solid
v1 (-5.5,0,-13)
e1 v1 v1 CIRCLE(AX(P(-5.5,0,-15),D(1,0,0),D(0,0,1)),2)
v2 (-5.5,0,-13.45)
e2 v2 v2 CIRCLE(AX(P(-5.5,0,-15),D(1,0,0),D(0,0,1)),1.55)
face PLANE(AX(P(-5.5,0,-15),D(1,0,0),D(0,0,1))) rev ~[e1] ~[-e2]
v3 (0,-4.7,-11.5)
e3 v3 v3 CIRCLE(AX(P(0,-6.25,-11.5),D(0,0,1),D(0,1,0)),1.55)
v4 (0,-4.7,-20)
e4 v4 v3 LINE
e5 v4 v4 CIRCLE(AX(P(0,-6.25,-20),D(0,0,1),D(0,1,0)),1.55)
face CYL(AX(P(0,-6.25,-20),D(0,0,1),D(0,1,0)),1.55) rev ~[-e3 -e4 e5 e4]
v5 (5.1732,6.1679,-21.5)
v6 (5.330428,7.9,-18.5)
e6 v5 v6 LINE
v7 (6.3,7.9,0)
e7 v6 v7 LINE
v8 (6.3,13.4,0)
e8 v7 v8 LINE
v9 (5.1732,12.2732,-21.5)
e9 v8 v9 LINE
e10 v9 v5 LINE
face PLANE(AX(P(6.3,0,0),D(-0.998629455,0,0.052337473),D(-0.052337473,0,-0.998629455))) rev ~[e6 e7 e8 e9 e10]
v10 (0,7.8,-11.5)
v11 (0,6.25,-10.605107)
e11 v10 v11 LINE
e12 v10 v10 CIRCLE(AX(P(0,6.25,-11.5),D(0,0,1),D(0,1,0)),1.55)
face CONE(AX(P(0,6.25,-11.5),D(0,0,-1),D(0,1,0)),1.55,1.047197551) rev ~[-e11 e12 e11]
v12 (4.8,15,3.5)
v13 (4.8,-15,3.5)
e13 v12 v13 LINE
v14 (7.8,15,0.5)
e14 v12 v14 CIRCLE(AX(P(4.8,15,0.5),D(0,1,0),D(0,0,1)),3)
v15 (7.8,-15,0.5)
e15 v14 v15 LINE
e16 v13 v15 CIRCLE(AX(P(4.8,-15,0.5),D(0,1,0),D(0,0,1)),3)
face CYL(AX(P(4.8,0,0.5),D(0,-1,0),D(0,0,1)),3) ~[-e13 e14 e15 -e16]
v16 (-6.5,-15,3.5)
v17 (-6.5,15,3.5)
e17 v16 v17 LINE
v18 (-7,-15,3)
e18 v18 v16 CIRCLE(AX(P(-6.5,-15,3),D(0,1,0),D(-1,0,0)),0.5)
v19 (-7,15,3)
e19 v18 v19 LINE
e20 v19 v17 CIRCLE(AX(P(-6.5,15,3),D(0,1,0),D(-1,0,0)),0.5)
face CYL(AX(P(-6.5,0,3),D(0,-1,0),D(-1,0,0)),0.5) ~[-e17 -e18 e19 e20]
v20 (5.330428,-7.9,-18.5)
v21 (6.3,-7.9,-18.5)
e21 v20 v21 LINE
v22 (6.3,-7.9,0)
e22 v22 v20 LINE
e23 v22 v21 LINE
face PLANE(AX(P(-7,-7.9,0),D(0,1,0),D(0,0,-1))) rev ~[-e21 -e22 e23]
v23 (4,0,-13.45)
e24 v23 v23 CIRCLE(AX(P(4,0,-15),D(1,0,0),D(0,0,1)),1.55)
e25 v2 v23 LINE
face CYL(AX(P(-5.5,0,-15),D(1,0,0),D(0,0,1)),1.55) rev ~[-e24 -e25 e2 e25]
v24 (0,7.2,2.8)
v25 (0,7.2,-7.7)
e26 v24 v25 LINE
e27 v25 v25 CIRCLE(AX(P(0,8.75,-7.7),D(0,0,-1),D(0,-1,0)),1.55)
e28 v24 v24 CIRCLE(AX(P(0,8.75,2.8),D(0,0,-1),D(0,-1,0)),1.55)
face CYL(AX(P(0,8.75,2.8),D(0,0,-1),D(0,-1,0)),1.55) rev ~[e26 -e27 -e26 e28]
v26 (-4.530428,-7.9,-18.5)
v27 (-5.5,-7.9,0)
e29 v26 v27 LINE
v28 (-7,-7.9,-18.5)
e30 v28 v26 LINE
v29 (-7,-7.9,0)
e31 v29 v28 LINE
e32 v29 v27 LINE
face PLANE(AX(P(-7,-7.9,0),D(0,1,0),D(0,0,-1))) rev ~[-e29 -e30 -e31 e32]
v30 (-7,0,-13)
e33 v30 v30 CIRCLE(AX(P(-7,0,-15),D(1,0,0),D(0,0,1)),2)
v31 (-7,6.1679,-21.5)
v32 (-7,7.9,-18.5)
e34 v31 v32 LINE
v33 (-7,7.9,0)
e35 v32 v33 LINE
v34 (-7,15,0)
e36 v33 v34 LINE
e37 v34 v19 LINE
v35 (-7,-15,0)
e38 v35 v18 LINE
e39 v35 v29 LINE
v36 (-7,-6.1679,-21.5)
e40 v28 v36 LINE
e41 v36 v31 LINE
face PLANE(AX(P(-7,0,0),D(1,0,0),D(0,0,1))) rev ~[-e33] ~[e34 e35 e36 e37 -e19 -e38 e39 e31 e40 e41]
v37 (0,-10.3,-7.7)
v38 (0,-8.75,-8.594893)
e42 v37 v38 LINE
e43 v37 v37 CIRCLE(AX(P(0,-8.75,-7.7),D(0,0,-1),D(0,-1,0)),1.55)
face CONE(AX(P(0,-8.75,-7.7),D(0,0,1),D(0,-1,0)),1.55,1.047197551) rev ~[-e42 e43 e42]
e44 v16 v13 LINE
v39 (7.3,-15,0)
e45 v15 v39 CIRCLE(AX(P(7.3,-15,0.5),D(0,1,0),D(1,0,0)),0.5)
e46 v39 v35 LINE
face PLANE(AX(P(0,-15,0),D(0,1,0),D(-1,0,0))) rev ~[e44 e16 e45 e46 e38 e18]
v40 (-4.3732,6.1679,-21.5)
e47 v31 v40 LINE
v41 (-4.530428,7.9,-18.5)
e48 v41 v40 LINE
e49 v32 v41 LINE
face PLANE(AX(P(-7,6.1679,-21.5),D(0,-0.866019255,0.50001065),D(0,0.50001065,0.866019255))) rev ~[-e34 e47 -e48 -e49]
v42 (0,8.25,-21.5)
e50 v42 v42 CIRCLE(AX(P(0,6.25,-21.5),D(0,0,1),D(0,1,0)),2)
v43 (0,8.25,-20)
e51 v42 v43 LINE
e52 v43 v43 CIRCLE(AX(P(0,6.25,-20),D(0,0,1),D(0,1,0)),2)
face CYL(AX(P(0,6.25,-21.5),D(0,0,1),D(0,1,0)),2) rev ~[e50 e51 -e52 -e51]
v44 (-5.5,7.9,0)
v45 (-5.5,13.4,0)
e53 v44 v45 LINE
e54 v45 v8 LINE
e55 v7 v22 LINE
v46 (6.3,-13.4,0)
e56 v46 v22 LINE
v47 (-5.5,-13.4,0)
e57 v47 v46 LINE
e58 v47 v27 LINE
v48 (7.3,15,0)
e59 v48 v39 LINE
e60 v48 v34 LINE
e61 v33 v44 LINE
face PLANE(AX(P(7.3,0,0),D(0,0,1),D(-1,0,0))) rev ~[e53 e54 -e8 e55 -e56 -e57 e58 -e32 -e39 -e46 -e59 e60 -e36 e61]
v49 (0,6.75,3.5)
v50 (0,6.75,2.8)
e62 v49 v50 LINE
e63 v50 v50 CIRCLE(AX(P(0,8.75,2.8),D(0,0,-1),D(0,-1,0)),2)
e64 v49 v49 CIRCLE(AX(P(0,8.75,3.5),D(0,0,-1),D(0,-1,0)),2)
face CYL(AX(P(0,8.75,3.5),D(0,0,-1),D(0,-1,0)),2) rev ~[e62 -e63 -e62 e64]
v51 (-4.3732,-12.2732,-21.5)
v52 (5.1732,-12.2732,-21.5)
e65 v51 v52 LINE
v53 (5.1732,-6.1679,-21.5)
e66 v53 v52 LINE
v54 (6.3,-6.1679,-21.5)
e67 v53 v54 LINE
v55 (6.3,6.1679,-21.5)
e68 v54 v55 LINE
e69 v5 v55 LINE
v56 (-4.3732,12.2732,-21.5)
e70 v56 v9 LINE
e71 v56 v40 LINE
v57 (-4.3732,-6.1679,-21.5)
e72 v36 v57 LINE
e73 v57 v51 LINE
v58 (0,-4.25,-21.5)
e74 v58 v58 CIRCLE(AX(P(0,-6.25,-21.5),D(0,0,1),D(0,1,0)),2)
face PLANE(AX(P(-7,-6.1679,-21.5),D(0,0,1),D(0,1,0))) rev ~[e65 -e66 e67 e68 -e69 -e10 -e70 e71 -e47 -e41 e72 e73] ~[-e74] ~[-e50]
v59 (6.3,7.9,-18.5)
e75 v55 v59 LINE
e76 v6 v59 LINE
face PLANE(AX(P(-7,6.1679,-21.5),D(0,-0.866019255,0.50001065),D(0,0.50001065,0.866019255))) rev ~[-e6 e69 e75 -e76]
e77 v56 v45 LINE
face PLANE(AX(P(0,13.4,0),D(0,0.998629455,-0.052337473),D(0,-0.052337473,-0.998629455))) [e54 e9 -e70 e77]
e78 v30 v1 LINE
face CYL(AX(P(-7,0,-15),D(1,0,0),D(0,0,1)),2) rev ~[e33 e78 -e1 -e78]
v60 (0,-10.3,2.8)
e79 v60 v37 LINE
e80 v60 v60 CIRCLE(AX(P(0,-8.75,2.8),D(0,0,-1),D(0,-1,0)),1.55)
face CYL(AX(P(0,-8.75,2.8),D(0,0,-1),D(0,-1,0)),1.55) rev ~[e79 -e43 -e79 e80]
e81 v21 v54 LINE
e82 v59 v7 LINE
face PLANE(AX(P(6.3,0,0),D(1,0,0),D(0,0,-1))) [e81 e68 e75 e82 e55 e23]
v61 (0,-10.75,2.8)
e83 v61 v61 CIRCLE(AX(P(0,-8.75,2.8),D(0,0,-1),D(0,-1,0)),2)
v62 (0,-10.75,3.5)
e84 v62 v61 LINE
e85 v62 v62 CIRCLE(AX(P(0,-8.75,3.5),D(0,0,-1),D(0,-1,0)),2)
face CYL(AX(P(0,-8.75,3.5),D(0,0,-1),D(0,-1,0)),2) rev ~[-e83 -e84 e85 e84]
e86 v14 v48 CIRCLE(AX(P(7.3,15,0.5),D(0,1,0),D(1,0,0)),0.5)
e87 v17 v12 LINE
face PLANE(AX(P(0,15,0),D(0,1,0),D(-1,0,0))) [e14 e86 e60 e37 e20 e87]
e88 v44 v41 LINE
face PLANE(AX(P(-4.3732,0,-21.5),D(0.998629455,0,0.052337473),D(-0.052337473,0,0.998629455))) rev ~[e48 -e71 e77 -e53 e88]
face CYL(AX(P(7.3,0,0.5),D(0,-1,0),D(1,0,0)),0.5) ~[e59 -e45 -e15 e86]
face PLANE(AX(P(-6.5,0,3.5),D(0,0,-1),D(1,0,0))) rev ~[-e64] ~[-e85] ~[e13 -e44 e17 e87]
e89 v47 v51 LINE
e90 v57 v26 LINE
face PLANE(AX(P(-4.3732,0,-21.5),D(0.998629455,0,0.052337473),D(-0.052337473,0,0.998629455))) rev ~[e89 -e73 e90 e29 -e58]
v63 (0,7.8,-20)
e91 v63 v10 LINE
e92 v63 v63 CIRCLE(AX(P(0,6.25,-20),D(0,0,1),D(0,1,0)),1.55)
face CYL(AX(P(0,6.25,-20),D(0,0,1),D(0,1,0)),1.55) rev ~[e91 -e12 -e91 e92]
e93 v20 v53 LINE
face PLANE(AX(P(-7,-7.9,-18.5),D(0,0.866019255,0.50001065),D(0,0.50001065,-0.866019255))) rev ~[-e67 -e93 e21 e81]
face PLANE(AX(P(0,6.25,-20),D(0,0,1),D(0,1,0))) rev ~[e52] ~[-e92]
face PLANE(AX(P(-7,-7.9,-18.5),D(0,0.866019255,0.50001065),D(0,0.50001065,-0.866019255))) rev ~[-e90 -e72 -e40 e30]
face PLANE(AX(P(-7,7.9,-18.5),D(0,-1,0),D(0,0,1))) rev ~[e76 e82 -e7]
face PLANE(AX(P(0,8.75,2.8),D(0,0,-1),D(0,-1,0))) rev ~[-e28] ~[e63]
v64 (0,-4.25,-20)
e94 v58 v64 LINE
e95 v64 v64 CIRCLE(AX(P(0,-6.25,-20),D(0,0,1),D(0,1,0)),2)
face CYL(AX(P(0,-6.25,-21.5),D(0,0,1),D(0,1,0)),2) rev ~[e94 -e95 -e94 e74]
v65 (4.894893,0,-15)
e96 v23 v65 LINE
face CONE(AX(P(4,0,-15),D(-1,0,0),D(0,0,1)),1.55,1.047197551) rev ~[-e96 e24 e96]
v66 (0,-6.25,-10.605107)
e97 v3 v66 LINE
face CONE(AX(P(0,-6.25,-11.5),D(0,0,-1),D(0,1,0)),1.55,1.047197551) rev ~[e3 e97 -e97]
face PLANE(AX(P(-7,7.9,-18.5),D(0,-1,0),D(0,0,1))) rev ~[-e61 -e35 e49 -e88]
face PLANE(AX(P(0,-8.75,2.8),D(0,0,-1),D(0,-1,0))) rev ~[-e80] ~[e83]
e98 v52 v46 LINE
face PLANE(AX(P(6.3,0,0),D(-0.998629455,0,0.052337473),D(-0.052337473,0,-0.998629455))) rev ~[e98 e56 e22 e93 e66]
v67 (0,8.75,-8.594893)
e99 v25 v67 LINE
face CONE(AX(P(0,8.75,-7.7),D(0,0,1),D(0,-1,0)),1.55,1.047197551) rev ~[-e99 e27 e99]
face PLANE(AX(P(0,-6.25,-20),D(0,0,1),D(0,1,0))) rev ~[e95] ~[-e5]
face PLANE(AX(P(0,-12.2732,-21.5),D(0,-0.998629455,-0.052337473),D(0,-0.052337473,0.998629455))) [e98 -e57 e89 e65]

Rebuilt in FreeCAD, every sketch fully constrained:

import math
import FreeCAD as App
import Part
import Sketcher

V = App.Vector
Q = App.Units.Quantity

doc = App.newDocument("Part")
body = doc.addObject("PartDesign::Body", "Body")

# Sketch on XZ plane
sketch1 = body.newObject("Sketcher::SketchObject", "Sketch")
sketch1.AttachmentSupport = (doc.getObject("XZ_Plane"), [""])
sketch1.MapMode = "FlatFace"
sketch1.addGeometry([
    Part.LineSegment(V(-4.3732, -21.5, 0), V(-5.5, 0, 0)),
    Part.LineSegment(V(-5.5, 0, 0), V(6.3, 0, 0)),
    Part.LineSegment(V(6.3, 0, 0), V(5.1732, -21.5, 0)),
    Part.LineSegment(V(5.1732, -21.5, 0), V(-4.3732, -21.5, 0)),
], False)
sketch1.addConstraint([
    Sketcher.Constraint("Coincident", 0, 2, 1, 1),
    Sketcher.Constraint("Coincident", 1, 2, 2, 1),
    Sketcher.Constraint("Coincident", 2, 2, 3, 1),
    Sketcher.Constraint("Coincident", 3, 2, 0, 1),
    Sketcher.Constraint("Horizontal", 1),
    Sketcher.Constraint("Horizontal", 3),
    Sketcher.Constraint("PointOnObject", 0, 2, -1),
    Sketcher.Constraint("Equal", 0, 2),
    Sketcher.Constraint("Angle", 0, Q("93 deg")),
    Sketcher.Constraint("DistanceX", 1, 1, 1, 2, Q("11.8 mm")),
    Sketcher.Constraint("DistanceX", 0, 2, -1, 1, Q("5.5 mm")),
    Sketcher.Constraint("DistanceY", 2, 2, -1, 1, Q("21.5 mm")),
])
pad1 = body.newObject("PartDesign::Pad", "Pad")
pad1.Profile = sketch1
pad1.Length = 26.8
pad1.Midplane = True

# Sketch on YZ plane
sketch2 = body.newObject("Sketcher::SketchObject", "Sketch001")
sketch2.AttachmentSupport = (doc.getObject("YZ_Plane"), [""])
sketch2.MapMode = "FlatFace"
sketch2.addGeometry([
    Part.LineSegment(V(15, 0, 0), V(13.4, 0, 0)),  # 0
    Part.LineSegment(V(13.4, 0, 0), V(12.2732, -21.5, 0)),  # 1
    Part.LineSegment(V(12.2732, -21.5, 0), V(-12.2732, -21.5, 0)),  # 2
    Part.LineSegment(V(-12.2732, -21.5, 0), V(-13.4, 0, 0)),  # 3
    Part.LineSegment(V(-13.4, 0, 0), V(-15, 0, 0)),  # 4
    Part.LineSegment(V(-15, 0, 0), V(-15, -25, 0)),  # 5
    Part.LineSegment(V(-15, -25, 0), V(15, -25, 0)),  # 6
    Part.LineSegment(V(15, -25, 0), V(15, 0, 0)),  # 7
], False)
sketch2.addConstraint([
    Sketcher.Constraint("Coincident", 0, 2, 1, 1),
    Sketcher.Constraint("Coincident", 1, 2, 2, 1),
    Sketcher.Constraint("Coincident", 2, 2, 3, 1),
    Sketcher.Constraint("Coincident", 3, 2, 4, 1),
    Sketcher.Constraint("Coincident", 4, 2, 5, 1),
    Sketcher.Constraint("Coincident", 5, 2, 6, 1),
    Sketcher.Constraint("Coincident", 6, 2, 7, 1),
    Sketcher.Constraint("Coincident", 7, 2, 0, 1),
    Sketcher.Constraint("Horizontal", 0),
    Sketcher.Constraint("Horizontal", 2),
    Sketcher.Constraint("Horizontal", 4),
    Sketcher.Constraint("Vertical", 5),
    Sketcher.Constraint("Horizontal", 6),
    Sketcher.Constraint("Vertical", 7),
    Sketcher.Constraint("Symmetric", 0, 2, 3, 2, -1, 1),
    Sketcher.Constraint("Symmetric", 4, 2, 7, 2, -2),
    Sketcher.Constraint("Equal", 1, 3),
    Sketcher.Constraint("DistanceX", 6, 1, 6, 2, Q("30 mm")),
    Sketcher.Constraint("DistanceY", 5, 2, 5, 1, Q("25 mm")),
    Sketcher.Constraint("Angle", 1, Q("-93 deg")),
    Sketcher.Constraint("DistanceX", 0, 2, 0, 1, Q("1.6 mm")),
    Sketcher.Constraint("DistanceY", 1, 2, -1, 1, Q("21.5 mm")),
])
pocket1 = body.newObject("PartDesign::Pocket", "Pocket")
pocket1.Profile = sketch2
pocket1.Length = 13
pocket1.Midplane = True

# Sketch on YZ plane
sketch3 = body.newObject("Sketcher::SketchObject", "Sketch002")
sketch3.AttachmentSupport = (doc.getObject("YZ_Plane"), [""])
sketch3.MapMode = "FlatFace"
sketch3.AttachmentOffset = App.Placement(V(0, 0, -7), App.Rotation())
sketch3.addGeometry([
    Part.LineSegment(V(7.9, 0, 0), V(-7.9, 0, 0)),  # 0
    Part.LineSegment(V(-7.9, 0, 0), V(-7.9, -18.5, 0)),  # 1
    Part.LineSegment(V(-7.9, -18.5, 0), V(-6.1679, -21.5, 0)),  # 2
    Part.LineSegment(V(-6.1679, -21.5, 0), V(6.1679, -21.5, 0)),  # 3
    Part.LineSegment(V(6.1679, -21.5, 0), V(7.9, -18.5, 0)),  # 4
    Part.LineSegment(V(7.9, -18.5, 0), V(7.9, 0, 0)),  # 5
], False)
sketch3.addConstraint([
    Sketcher.Constraint("Coincident", 0, 2, 1, 1),
    Sketcher.Constraint("Coincident", 1, 2, 2, 1),
    Sketcher.Constraint("Coincident", 2, 2, 3, 1),
    Sketcher.Constraint("Coincident", 3, 2, 4, 1),
    Sketcher.Constraint("Coincident", 4, 2, 5, 1),
    Sketcher.Constraint("Coincident", 5, 2, 0, 1),
    Sketcher.Constraint("Horizontal", 0),
    Sketcher.Constraint("Vertical", 1),
    Sketcher.Constraint("Horizontal", 3),
    Sketcher.Constraint("Vertical", 5),
    Sketcher.Constraint("Symmetric", 0, 2, 5, 2, -1, 1),
    Sketcher.Constraint("Horizontal", 1, 2, 4, 2),
    Sketcher.Constraint("Equal", 2, 4),
    Sketcher.Constraint("Angle", 2, Q("-59.9993 deg")),
    Sketcher.Constraint("DistanceX", 0, 2, 0, 1, Q("15.8 mm")),
    Sketcher.Constraint("DistanceY", 1, 2, 1, 1, Q("18.5 mm")),
    Sketcher.Constraint("DistanceY", 2, 2, 1, 2, Q("3 mm")),
])
pad2 = body.newObject("PartDesign::Pad", "Pad001")
pad2.Profile = sketch3
pad2.Length = 13.3

# Sketch on XZ plane
sketch4 = body.newObject("Sketcher::SketchObject", "Sketch003")
sketch4.AttachmentSupport = (doc.getObject("XZ_Plane"), [""])
sketch4.MapMode = "FlatFace"
sketch4.addGeometry([
    Part.LineSegment(V(7.3, 0, 0), V(-7, 0, 0)),  # 0
    Part.LineSegment(V(-7, 0, 0), V(-7, 3, 0)),  # 1
    Part.ArcOfCircle(Part.Circle(V(-6.5, 3, 0), V(0, 0, 1), 0.5), math.radians(90), math.radians(180)),  # 2
    Part.LineSegment(V(-6.5, 3.5, 0), V(4.8, 3.5, 0)),  # 3
    Part.ArcOfCircle(Part.Circle(V(4.8, 0.5, 0), V(0, 0, 1), 3), math.radians(0), math.radians(90)),  # 4
    Part.ArcOfCircle(Part.Circle(V(7.3, 0.5, 0), V(0, 0, 1), 0.5), math.radians(-90), math.radians(0)),  # 5
], False)
sketch4.addConstraint([
    Sketcher.Constraint("Coincident", 0, 2, 1, 1),
    Sketcher.Constraint("Tangent", 1, 2, 2, 2),
    Sketcher.Constraint("Tangent", 2, 1, 3, 1),
    Sketcher.Constraint("Tangent", 3, 2, 4, 2),
    Sketcher.Constraint("Tangent", 4, 1, 5, 2),
    Sketcher.Constraint("Tangent", 5, 1, 0, 1),
    Sketcher.Constraint("Horizontal", 0),
    Sketcher.Constraint("Vertical", 1),
    Sketcher.Constraint("Horizontal", 3),
    Sketcher.Constraint("Equal", 2, 5),
    Sketcher.Constraint("PointOnObject", 0, 2, -1),
    Sketcher.Constraint("Horizontal", 4, 3, 5, 3),
    Sketcher.Constraint("Radius", 4, Q("3 mm")),
    Sketcher.Constraint("Radius", 2, Q("0.5 mm")),
    Sketcher.Constraint("DistanceX", 0, 2, 0, 1, Q("14.3 mm")),
    Sketcher.Constraint("DistanceX", 0, 2, -1, 1, Q("7 mm")),
])
pad3 = body.newObject("PartDesign::Pad", "Pad002")
pad3.Profile = sketch4
pad3.Length = 30
pad3.Midplane = True

# Sketch on XY plane
sketch5 = body.newObject("Sketcher::SketchObject", "Sketch004")
sketch5.AttachmentSupport = (doc.getObject("XY_Plane"), [""])
sketch5.MapMode = "FlatFace"
sketch5.AttachmentOffset = App.Placement(V(0, 0, 3.5), App.Rotation())
sketch5.addGeometry(Part.Circle(V(0, 8.75, 0), V(0, 0, 1), 1.55), False)
sketch5.addConstraint([
    Sketcher.Constraint("PointOnObject", 0, 3, -2),
    Sketcher.Constraint("Diameter", 0, Q("3.1 mm")),
    Sketcher.Constraint("DistanceY", -1, 1, 0, 3, Q("8.75 mm")),
])
doc.recompute()
hole = body.newObject("PartDesign::Hole", "Hole")
hole.Profile = sketch5
hole.ThreadType = "None"
hole.Diameter = 3.1
hole.DepthType = "Dimension"
hole.Depth = 11.2
hole.DrillPoint = "Angled"
hole.DrillPointAngle = 120
hole.HoleCutType = "Counterbore"
hole.HoleCutDiameter = 4
hole.HoleCutDepth = 0.7

# Sketch on XY plane
sketch6 = body.newObject("Sketcher::SketchObject", "Sketch005")
sketch6.AttachmentSupport = (doc.getObject("XY_Plane"), [""])
sketch6.MapMode = "FlatFace"
sketch6.AttachmentOffset = App.Placement(V(0, 0, 3.5), App.Rotation())
sketch6.addGeometry(Part.Circle(V(0, -8.75, 0), V(0, 0, 1), 1.55), False)
sketch6.addConstraint([
    Sketcher.Constraint("PointOnObject", 0, 3, -2),
    Sketcher.Constraint("Diameter", 0, Q("3.1 mm")),
    Sketcher.Constraint("DistanceY", 0, 3, -1, 1, Q("8.75 mm")),
])
doc.recompute()
hole2 = body.newObject("PartDesign::Hole", "Hole001")
hole2.Profile = sketch6
hole2.ThreadType = "None"
hole2.Diameter = 3.1
hole2.DepthType = "Dimension"
hole2.Depth = 11.2
hole2.DrillPoint = "Angled"
hole2.DrillPointAngle = 120
hole2.HoleCutType = "Counterbore"
hole2.HoleCutDiameter = 4
hole2.HoleCutDepth = 0.7

# Sketch on XY plane
sketch7 = body.newObject("Sketcher::SketchObject", "Sketch006")
sketch7.AttachmentSupport = (doc.getObject("XY_Plane"), [""])
sketch7.MapMode = "FlatFace"
sketch7.AttachmentOffset = App.Placement(V(0, 0, -21.5), App.Rotation())
sketch7.addGeometry(Part.Circle(V(0, 6.25, 0), V(0, 0, 1), 1.55), False)
sketch7.addConstraint([
    Sketcher.Constraint("PointOnObject", 0, 3, -2),
    Sketcher.Constraint("Diameter", 0, Q("3.1 mm")),
    Sketcher.Constraint("DistanceY", -1, 1, 0, 3, Q("6.25 mm")),
])
doc.recompute()
hole3 = body.newObject("PartDesign::Hole", "Hole002")
hole3.Profile = sketch7
hole3.ThreadType = "None"
hole3.Diameter = 3.1
hole3.DepthType = "Dimension"
hole3.Depth = 10
hole3.DrillPoint = "Angled"
hole3.DrillPointAngle = 120
hole3.HoleCutType = "Counterbore"
hole3.HoleCutDiameter = 4
hole3.HoleCutDepth = 1.5
hole3.Reversed = True

# Sketch on XY plane
sketch8 = body.newObject("Sketcher::SketchObject", "Sketch007")
sketch8.AttachmentSupport = (doc.getObject("XY_Plane"), [""])
sketch8.MapMode = "FlatFace"
sketch8.AttachmentOffset = App.Placement(V(0, 0, -21.5), App.Rotation())
sketch8.addGeometry(Part.Circle(V(0, -6.25, 0), V(0, 0, 1), 1.55), False)
sketch8.addConstraint([
    Sketcher.Constraint("PointOnObject", 0, 3, -2),
    Sketcher.Constraint("Diameter", 0, Q("3.1 mm")),
    Sketcher.Constraint("DistanceY", 0, 3, -1, 1, Q("6.25 mm")),
])
doc.recompute()
hole4 = body.newObject("PartDesign::Hole", "Hole003")
hole4.Profile = sketch8
hole4.ThreadType = "None"
hole4.Diameter = 3.1
hole4.DepthType = "Dimension"
hole4.Depth = 10
hole4.DrillPoint = "Angled"
hole4.DrillPointAngle = 120
hole4.HoleCutType = "Counterbore"
hole4.HoleCutDiameter = 4
hole4.HoleCutDepth = 1.5
hole4.Reversed = True

# Sketch on YZ plane
sketch9 = body.newObject("Sketcher::SketchObject", "Sketch008")
sketch9.AttachmentSupport = (doc.getObject("YZ_Plane"), [""])
sketch9.MapMode = "FlatFace"
sketch9.AttachmentOffset = App.Placement(V(0, 0, -7), App.Rotation())
sketch9.addGeometry(Part.Circle(V(0, -15, 0), V(0, 0, 1), 1.55), False)
sketch9.addConstraint([
    Sketcher.Constraint("PointOnObject", 0, 3, -2),
    Sketcher.Constraint("Diameter", 0, Q("3.1 mm")),
    Sketcher.Constraint("DistanceY", 0, 3, -1, 1, Q("15 mm")),
])
doc.recompute()
hole5 = body.newObject("PartDesign::Hole", "Hole004")
hole5.Profile = sketch9
hole5.ThreadType = "None"
hole5.Diameter = 3.1
hole5.DepthType = "Dimension"
hole5.Depth = 11
hole5.DrillPoint = "Angled"
hole5.DrillPointAngle = 120
hole5.HoleCutType = "Counterbore"
hole5.HoleCutDiameter = 4
hole5.HoleCutDepth = 1.5
hole5.Reversed = True

doc.recompute()
